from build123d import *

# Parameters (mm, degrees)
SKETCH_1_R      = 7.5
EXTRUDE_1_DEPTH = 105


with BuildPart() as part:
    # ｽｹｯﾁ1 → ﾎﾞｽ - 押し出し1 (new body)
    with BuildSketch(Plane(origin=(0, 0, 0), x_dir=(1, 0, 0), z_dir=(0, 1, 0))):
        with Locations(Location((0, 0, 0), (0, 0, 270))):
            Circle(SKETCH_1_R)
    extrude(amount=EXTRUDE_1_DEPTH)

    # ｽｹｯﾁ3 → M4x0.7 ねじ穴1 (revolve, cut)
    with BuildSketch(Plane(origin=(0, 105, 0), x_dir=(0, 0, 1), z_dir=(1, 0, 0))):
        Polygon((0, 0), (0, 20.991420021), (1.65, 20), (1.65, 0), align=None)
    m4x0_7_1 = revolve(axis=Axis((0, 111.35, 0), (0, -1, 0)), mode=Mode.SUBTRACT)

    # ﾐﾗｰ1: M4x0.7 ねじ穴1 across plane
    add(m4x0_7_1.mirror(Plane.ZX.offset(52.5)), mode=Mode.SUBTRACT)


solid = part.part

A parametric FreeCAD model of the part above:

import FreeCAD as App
import Part
import Sketcher
from FreeCAD import Vector
Q = App.Units.Quantity


def add_polygon(sketch, points):
    """Adds a closed chain of lines whose ends are joined by coincident constraints."""
    first, n = sketch.GeometryCount, len(points)
    for a, b in zip(points, points[1:] + points[:1]):
        sketch.addGeometry(Part.LineSegment(App.Vector(*a, 0), App.Vector(*b, 0)), False)
    for i in range(n):
        sketch.addConstraint(Sketcher.Constraint("Coincident", first + i, 2, first + (i + 1) % n, 1))

doc = App.newDocument("Part")
params = doc.addObject("Spreadsheet::Sheet", "Params")
for row, (alias, value) in enumerate([
    ("sketch1_diameter", "15 mm"),
    ("pad1_length", "105 mm"),
    ("sketch2_width", "20 mm"),
    ("sketch2_height", "1.65 mm"),
    ("groove_angle", "360 deg"),
], start=1):
    params.set(f"A{row}", alias)
    params.set(f"B{row}", "=" + value)
    params.setAlias(f"B{row}", alias)

body = doc.addObject("PartDesign::Body", "Body")

# Sketch on XZ plane
sketch1 = body.newObject("Sketcher::SketchObject", "Sketch")
sketch1.AttachmentSupport = (doc.getObject("XZ_Plane"), [""])
sketch1.MapMode = "FlatFace"
sketch1.addGeometry(Part.Circle(Vector(0, 0, 0), Vector(0, 0, 1), 7.5), False)
sketch1.addConstraint(Sketcher.Constraint("Coincident", 0, 3, -1, 1))
sketch1.addConstraint(Sketcher.Constraint("Diameter", 0, 15.0))
sketch1.setExpression("Constraints[1]", "Params.sketch1_diameter")
pad1 = body.newObject("PartDesign::Pad", "Pad")
pad1.Profile = sketch1
pad1.setExpression("Length", "Params.pad1_length")
pad1.Reversed = True

# Sketch on YZ plane
sketch2 = body.newObject("Sketcher::SketchObject", "Sketch001")
sketch2.AttachmentSupport = (doc.getObject("YZ_Plane"), [""])
sketch2.MapMode = "FlatFace"
add_polygon(sketch2, [(84.00858, 0), (105, 0), (105, 1.65), (85, 1.65)])  # lines 0-3
sketch2.addConstraint(Sketcher.Constraint("Horizontal", 0))
sketch2.addConstraint(Sketcher.Constraint("Vertical", 1))
sketch2.addConstraint(Sketcher.Constraint("Horizontal", 2))
sketch2.addConstraint(Sketcher.Constraint("PointOnObject", 0, 2, -1))
sketch2.addConstraint(Sketcher.Constraint("DistanceX", 2, 2, 2, 1, 20.0))
sketch2.addConstraint(Sketcher.Constraint("Angle", 3, Q("-121 deg")))
sketch2.addConstraint(Sketcher.Constraint("DistanceX", -1, 1, 0, 2, 105.0))
sketch2.addConstraint(Sketcher.Constraint("DistanceY", 1, 1, 1, 2, 1.65))
sketch2.setExpression("Constraints[8]", "Params.sketch2_width")
sketch2.setExpression("Constraints[11]", "Params.sketch2_height")
groove = body.newObject("PartDesign::Groove", "Groove")
groove.Profile = sketch2
groove.ReferenceAxis = (sketch2, ["H_Axis"])
groove.setExpression("Angle", "Params.groove_angle")
doc.recompute()

datumplane = body.newObject("PartDesign::Plane", "DatumPlane")
datumplane.AttachmentSupport = (doc.getObject("XZ_Plane"), [""])
datumplane.MapMode = "FlatFace"
datumplane.AttachmentOffset = App.Placement(Vector(0, 0, -52.5), App.Rotation())
mirrored = body.newObject("PartDesign::Mirrored", "Mirrored")
mirrored.Originals = [groove]
mirrored.MirrorPlane = (datumplane, [""])
body.Tip = mirrored

doc.recompute()
